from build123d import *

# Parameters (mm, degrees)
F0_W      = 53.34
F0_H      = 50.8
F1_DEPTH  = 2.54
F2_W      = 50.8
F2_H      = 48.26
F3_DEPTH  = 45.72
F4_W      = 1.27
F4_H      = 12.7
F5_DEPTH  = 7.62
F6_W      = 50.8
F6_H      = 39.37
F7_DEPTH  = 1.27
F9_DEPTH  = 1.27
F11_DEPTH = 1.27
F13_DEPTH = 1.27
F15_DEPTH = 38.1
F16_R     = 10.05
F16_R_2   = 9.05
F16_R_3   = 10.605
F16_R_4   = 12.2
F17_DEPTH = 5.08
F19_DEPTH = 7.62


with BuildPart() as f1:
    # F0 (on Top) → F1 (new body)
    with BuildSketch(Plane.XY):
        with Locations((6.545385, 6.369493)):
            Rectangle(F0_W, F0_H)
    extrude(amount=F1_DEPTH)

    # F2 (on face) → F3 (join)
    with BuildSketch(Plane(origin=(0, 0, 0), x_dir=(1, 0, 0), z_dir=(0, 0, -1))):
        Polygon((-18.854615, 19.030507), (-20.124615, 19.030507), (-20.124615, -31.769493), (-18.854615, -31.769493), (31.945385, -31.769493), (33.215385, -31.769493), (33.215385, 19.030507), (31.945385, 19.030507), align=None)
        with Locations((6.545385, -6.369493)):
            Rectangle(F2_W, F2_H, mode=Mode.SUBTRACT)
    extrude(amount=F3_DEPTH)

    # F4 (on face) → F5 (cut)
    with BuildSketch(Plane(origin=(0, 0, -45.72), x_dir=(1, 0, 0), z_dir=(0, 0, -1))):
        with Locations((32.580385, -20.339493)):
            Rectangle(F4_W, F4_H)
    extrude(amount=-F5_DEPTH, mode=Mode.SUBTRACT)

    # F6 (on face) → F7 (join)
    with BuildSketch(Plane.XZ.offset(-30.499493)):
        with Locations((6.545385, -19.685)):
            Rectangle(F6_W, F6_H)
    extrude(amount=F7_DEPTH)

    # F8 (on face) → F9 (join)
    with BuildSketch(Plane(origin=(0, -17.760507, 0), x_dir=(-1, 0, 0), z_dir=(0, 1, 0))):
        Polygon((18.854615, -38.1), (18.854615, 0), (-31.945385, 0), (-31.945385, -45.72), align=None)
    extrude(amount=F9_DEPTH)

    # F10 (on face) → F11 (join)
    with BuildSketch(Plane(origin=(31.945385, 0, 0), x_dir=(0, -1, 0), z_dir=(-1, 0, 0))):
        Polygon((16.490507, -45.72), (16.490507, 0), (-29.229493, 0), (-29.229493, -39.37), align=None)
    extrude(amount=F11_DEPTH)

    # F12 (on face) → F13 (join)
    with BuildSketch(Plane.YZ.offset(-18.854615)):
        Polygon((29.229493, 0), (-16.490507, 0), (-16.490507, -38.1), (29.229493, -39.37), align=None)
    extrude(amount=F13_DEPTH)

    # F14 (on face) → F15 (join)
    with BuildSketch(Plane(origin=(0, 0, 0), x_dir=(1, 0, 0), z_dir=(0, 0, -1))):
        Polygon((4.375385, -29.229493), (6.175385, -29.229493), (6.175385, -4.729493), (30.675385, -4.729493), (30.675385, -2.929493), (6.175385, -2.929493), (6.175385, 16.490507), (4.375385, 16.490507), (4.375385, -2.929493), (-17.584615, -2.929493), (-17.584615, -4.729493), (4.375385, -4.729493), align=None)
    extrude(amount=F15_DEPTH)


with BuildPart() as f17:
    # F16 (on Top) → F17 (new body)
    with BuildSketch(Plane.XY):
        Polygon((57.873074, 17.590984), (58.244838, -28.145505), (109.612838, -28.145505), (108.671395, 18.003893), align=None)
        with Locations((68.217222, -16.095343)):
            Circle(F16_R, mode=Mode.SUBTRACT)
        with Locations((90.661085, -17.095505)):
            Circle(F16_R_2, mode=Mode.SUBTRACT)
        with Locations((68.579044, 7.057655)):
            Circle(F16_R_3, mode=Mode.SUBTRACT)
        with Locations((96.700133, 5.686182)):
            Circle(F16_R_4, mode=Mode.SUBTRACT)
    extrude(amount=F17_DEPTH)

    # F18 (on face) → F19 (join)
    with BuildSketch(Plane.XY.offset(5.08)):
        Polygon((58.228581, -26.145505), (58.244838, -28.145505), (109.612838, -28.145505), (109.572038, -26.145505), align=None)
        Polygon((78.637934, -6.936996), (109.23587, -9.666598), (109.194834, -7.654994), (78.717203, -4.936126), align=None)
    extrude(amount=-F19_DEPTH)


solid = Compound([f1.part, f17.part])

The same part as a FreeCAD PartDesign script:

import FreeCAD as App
import Part
import Sketcher
from FreeCAD import Vector
Q = App.Units.Quantity

doc = App.newDocument("Part")
body = doc.addObject("PartDesign::Body", "Body")

sketch1 = body.newObject("Sketcher::SketchObject", "Sketch")
sketch1.AttachmentSupport = (doc.getObject("XY_Plane"), [""])
sketch1.MapMode = "FlatFace"
sketch1.addGeometry([
    Part.LineSegment(Vector(-20, 32, 0), Vector(-20, -19, 0)),
    Part.LineSegment(Vector(-20, -19, 0), Vector(33, -19, 0)),
    Part.LineSegment(Vector(33, -19, 0), Vector(33, 32, 0)),
    Part.LineSegment(Vector(33, 32, 0), Vector(-20, 32, 0)),
], False)
sketch1.addConstraint([
    Sketcher.Constraint("Coincident", 0, 2, 1, 1),
    Sketcher.Constraint("Coincident", 1, 2, 2, 1),
    Sketcher.Constraint("Coincident", 2, 2, 3, 1),
    Sketcher.Constraint("Coincident", 3, 2, 0, 1),
    Sketcher.Constraint("Vertical", 0),
    Sketcher.Constraint("Horizontal", 1),
    Sketcher.Constraint("Vertical", 2),
    Sketcher.Constraint("Horizontal", 3),
    Sketcher.Constraint("DistanceY", 0, 2, 0, 1, Q("2 in")),
    Sketcher.Constraint("DistanceX", 1, 1, 1, 2, Q("2.1 in")),
    Sketcher.Constraint("DistanceX", 0, 2, -1, 1, 20.124615),
    Sketcher.Constraint("DistanceY", 0, 2, -1, 1, 19.030507),
])
pad1 = body.newObject("PartDesign::Pad", "Pad")
pad1.Profile = sketch1
pad1.Length = Q("0.1 in")

sketch2 = body.newObject("Sketcher::SketchObject", "Sketch001")
sketch2.AttachmentSupport = (doc.getObject("XY_Plane"), [""])
sketch2.MapMode = "FlatFace"
sketch2.addGeometry([
    Part.LineSegment(Vector(-20, -19, 0), Vector(-20, 32, 0)),
    Part.LineSegment(Vector(-20, 32, 0), Vector(33, 32, 0)),
    Part.LineSegment(Vector(33, 32, 0), Vector(33, -19, 0)),
    Part.LineSegment(Vector(33, -19, 0), Vector(-20, -19, 0)),
    Part.LineSegment(Vector(32, 30, 0), Vector(-19, 30, 0)),
    Part.LineSegment(Vector(-19, 30, 0), Vector(-19, -18, 0)),
    Part.LineSegment(Vector(-19, -18, 0), Vector(32, -18, 0)),
    Part.LineSegment(Vector(32, -18, 0), Vector(32, 30, 0)),
], False)
sketch2.addConstraint([
    Sketcher.Constraint("Coincident", 0, 2, 1, 1),
    Sketcher.Constraint("Coincident", 1, 2, 2, 1),
    Sketcher.Constraint("Coincident", 2, 2, 3, 1),
    Sketcher.Constraint("Coincident", 3, 2, 0, 1),
    Sketcher.Constraint("Coincident", 4, 2, 5, 1),
    Sketcher.Constraint("Coincident", 5, 2, 6, 1),
    Sketcher.Constraint("Coincident", 6, 2, 7, 1),
    Sketcher.Constraint("Coincident", 7, 2, 4, 1),
    Sketcher.Constraint("Vertical", 0),
    Sketcher.Constraint("Horizontal", 1),
    Sketcher.Constraint("Vertical", 2),
    Sketcher.Constraint("Horizontal", 3),
    Sketcher.Constraint("Horizontal", 4),
    Sketcher.Constraint("Vertical", 5),
    Sketcher.Constraint("Horizontal", 6),
    Sketcher.Constraint("Vertical", 7),
    Sketcher.Constraint("Equal", 6, 0),
    Sketcher.Constraint("DistanceX", 4, 2, 4, 1, Q("2 in")),
    Sketcher.Constraint("DistanceX", 1, 1, 1, 2, Q("2.1 in")),
    Sketcher.Constraint("DistanceY", 5, 2, 5, 1, Q("1.9 in")),
    Sketcher.Constraint("DistanceX", 0, 2, 4, 2, Q("0.05 in")),
    Sketcher.Constraint("DistanceY", 4, 2, 0, 2, Q("0.05 in")),
    Sketcher.Constraint("DistanceX", 0, 2, -1, 1, 20.124615),
    Sketcher.Constraint("DistanceY", -1, 1, 0, 2, 31.769493),
])
pad2 = body.newObject("PartDesign::Pad", "Pad001")
pad2.Profile = sketch2
pad2.Length = Q("1.8 in")
pad2.Reversed = True

sketch3 = body.newObject("Sketcher::SketchObject", "Sketch002")
sketch3.AttachmentSupport = (doc.getObject("XY_Plane"), [""])
sketch3.MapMode = "FlatFace"
sketch3.AttachmentOffset = App.Placement(Vector(0, 0, -1.8 * 25.4), App.Rotation())
sketch3.addGeometry([
    Part.LineSegment(Vector(31.9, 14, 0), Vector(31.9, 26.7, 0)),
    Part.LineSegment(Vector(31.9, 26.7, 0), Vector(33.2, 26.7, 0)),
    Part.LineSegment(Vector(33.2, 26.7, 0), Vector(33.2, 14, 0)),
    Part.LineSegment(Vector(33.2, 14, 0), Vector(31.9, 14, 0)),
], False)
sketch3.addConstraint([
    Sketcher.Constraint("Coincident", 0, 2, 1, 1),
    Sketcher.Constraint("Coincident", 1, 2, 2, 1),
    Sketcher.Constraint("Coincident", 2, 2, 3, 1),
    Sketcher.Constraint("Coincident", 3, 2, 0, 1),
    Sketcher.Constraint("Vertical", 0),
    Sketcher.Constraint("Horizontal", 1),
    Sketcher.Constraint("Vertical", 2),
    Sketcher.Constraint("Horizontal", 3),
    Sketcher.Constraint("DistanceY", 0, 1, 0, 2, Q("0.5 in")),
    Sketcher.Constraint("DistanceX", 1, 1, 1, 2, Q("0.05 in")),
    Sketcher.Constraint("DistanceX", -1, 1, 0, 2, 31.945385),
    Sketcher.Constraint("DistanceY", -1, 1, 0, 2, 26.689493),
])
pocket1 = body.newObject("PartDesign::Pocket", "Pocket")
pocket1.Profile = sketch3
pocket1.Length = Q("0.3 in")
pocket1.Reversed = True

sketch4 = body.newObject("Sketcher::SketchObject", "Sketch003")
sketch4.AttachmentSupport = (doc.getObject("XZ_Plane"), [""])
sketch4.MapMode = "FlatFace"
sketch4.AttachmentOffset = App.Placement(Vector(0, 0, -30.499493), App.Rotation())
sketch4.addGeometry([
    Part.LineSegment(Vector(-19, 0, 0), Vector(-19, -39, 0)),
    Part.LineSegment(Vector(-19, -39, 0), Vector(32, -39, 0)),
    Part.LineSegment(Vector(32, -39, 0), Vector(32, 0, 0)),
    Part.LineSegment(Vector(32, 0, 0), Vector(-19, 0, 0)),
], False)
sketch4.addConstraint([
    Sketcher.Constraint("Coincident", 0, 2, 1, 1),
    Sketcher.Constraint("Coincident", 1, 2, 2, 1),
    Sketcher.Constraint("Coincident", 2, 2, 3, 1),
    Sketcher.Constraint("Coincident", 3, 2, 0, 1),
    Sketcher.Constraint("Vertical", 0),
    Sketcher.Constraint("Horizontal", 1),
    Sketcher.Constraint("Vertical", 2),
    Sketcher.Constraint("Horizontal", 3),
    Sketcher.Constraint("PointOnObject", 2, 2, -1),
    Sketcher.Constraint("DistanceX", 1, 1, 1, 2, Q("2 in")),
    Sketcher.Constraint("DistanceY", 0, 2, 0, 1, Q("1.55 in")),
    Sketcher.Constraint("DistanceX", 0, 2, -1, 1, 18.854615),
])
pad3 = body.newObject("PartDesign::Pad", "Pad002")
pad3.Profile = sketch4
pad3.Length = Q("0.05 in")

sketch5 = body.newObject("Sketcher::SketchObject", "Sketch004")
sketch5.AttachmentSupport = (doc.getObject("XZ_Plane"), [""])
sketch5.MapMode = "FlatFace"
sketch5.AttachmentOffset = App.Placement(Vector(0, 0, 17.760507), App.Rotation())
sketch5.addGeometry([
    Part.LineSegment(Vector(-19, -38, 0), Vector(-19, 0, 0)),
    Part.LineSegment(Vector(-19, 0, 0), Vector(32, 0, 0)),
    Part.LineSegment(Vector(32, 0, 0), Vector(32, -46, 0)),
    Part.LineSegment(Vector(32, -46, 0), Vector(-19, -38, 0)),
], False)
sketch5.addConstraint([
    Sketcher.Constraint("Coincident", 0, 2, 1, 1),
    Sketcher.Constraint("Coincident", 1, 2, 2, 1),
    Sketcher.Constraint("Coincident", 2, 2, 3, 1),
    Sketcher.Constraint("Coincident", 3, 2, 0, 1),
    Sketcher.Constraint("Vertical", 0),
    Sketcher.Constraint("Horizontal", 1),
    Sketcher.Constraint("Vertical", 2),
    Sketcher.Constraint("PointOnObject", 0, 2, -1),
    Sketcher.Constraint("DistanceX", 1, 1, 1, 2, Q("2 in")),
    Sketcher.Constraint("DistanceY", 0, 1, 0, 2, Q("1.5 in")),
    Sketcher.Constraint("DistanceY", 2, 2, 2, 1, Q("1.8 in")),
    Sketcher.Constraint("DistanceX", 0, 2, -1, 1, 18.854615),
])
pad4 = body.newObject("PartDesign::Pad", "Pad003")
pad4.Profile = sketch5
pad4.Length = Q("0.05 in")
pad4.Reversed = True

sketch6 = body.newObject("Sketcher::SketchObject", "Sketch005")
sketch6.AttachmentSupport = (doc.getObject("YZ_Plane"), [""])
sketch6.MapMode = "FlatFace"
sketch6.AttachmentOffset = App.Placement(Vector(0, 0, 31.945385), App.Rotation())
sketch6.addGeometry([
    Part.LineSegment(Vector(-16, -46, 0), Vector(-16, 0, 0)),
    Part.LineSegment(Vector(-16, 0, 0), Vector(29, 0, 0)),
    Part.LineSegment(Vector(29, 0, 0), Vector(29, -39, 0)),
    Part.LineSegment(Vector(29, -39, 0), Vector(-16, -46, 0)),
], False)
sketch6.addConstraint([
    Sketcher.Constraint("Coincident", 0, 2, 1, 1),
    Sketcher.Constraint("Coincident", 1, 2, 2, 1),
    Sketcher.Constraint("Coincident", 2, 2, 3, 1),
    Sketcher.Constraint("Coincident", 3, 2, 0, 1),
    Sketcher.Constraint("Vertical", 0),
    Sketcher.Constraint("Horizontal", 1),
    Sketcher.Constraint("Vertical", 2),
    Sketcher.Constraint("PointOnObject", 0, 2, -1),
    Sketcher.Constraint("Equal", 1, 0),
    Sketcher.Constraint("DistanceX", 1, 1, 1, 2, Q("1.8 in")),
    Sketcher.Constraint("DistanceY", 2, 2, 2, 1, Q("1.55 in")),
    Sketcher.Constraint("DistanceX", 0, 2, -1, 1, 16.490507),
])
pad5 = body.newObject("PartDesign::Pad", "Pad004")
pad5.Profile = sketch6
pad5.Length = Q("0.05 in")
pad5.Reversed = True

sketch7 = body.newObject("Sketcher::SketchObject", "Sketch006")
sketch7.AttachmentSupport = (doc.getObject("YZ_Plane"), [""])
sketch7.MapMode = "FlatFace"
sketch7.AttachmentOffset = App.Placement(Vector(0, 0, -18.854615), App.Rotation())
sketch7.addGeometry([
    Part.LineSegment(Vector(29, 0, 0), Vector(-16, 0, 0)),
    Part.LineSegment(Vector(-16, 0, 0), Vector(-16, -38, 0)),
    Part.LineSegment(Vector(-16, -38, 0), Vector(29, -39, 0)),
    Part.LineSegment(Vector(29, -39, 0), Vector(29, 0, 0)),
], False)
sketch7.addConstraint([
    Sketcher.Constraint("Coincident", 0, 2, 1, 1),
    Sketcher.Constraint("Coincident", 1, 2, 2, 1),
    Sketcher.Constraint("Coincident", 2, 2, 3, 1),
    Sketcher.Constraint("Coincident", 3, 2, 0, 1),
    Sketcher.Constraint("Horizontal", 0),
    Sketcher.Constraint("Vertical", 1),
    Sketcher.Constraint("Vertical", 3),
    Sketcher.Constraint("PointOnObject", 0, 2, -1),
    Sketcher.Constraint("DistanceX", 0, 2, 0, 1, Q("1.8 in")),
    Sketcher.Constraint("DistanceY", 1, 2, 1, 1, Q("1.5 in")),
    Sketcher.Constraint("DistanceY", 3, 1, 3, 2, Q("1.55 in")),
    Sketcher.Constraint("DistanceX", 0, 2, -1, 1, 16.490507),
])
pad6 = body.newObject("PartDesign::Pad", "Pad005")
pad6.Profile = sketch7
pad6.Length = Q("0.05 in")

sketch8 = body.newObject("Sketcher::SketchObject", "Sketch007")
sketch8.AttachmentSupport = (doc.getObject("XY_Plane"), [""])
sketch8.MapMode = "FlatFace"
sketch8.addGeometry([
    Part.LineSegment(Vector(4.4, 29.2, 0), Vector(6.2, 29.2, 0)),
    Part.LineSegment(Vector(6.2, 29.2, 0), Vector(6.2, 4.7, 0)),
    Part.LineSegment(Vector(6.2, 4.7, 0), Vector(30.7, 4.7, 0)),
    Part.LineSegment(Vector(30.7, 4.7, 0), Vector(30.7, 2.9, 0)),
    Part.LineSegment(Vector(30.7, 2.9, 0), Vector(6.2, 2.9, 0)),
    Part.LineSegment(Vector(6.2, 2.9, 0), Vector(6.2, -16.5, 0)),
    Part.LineSegment(Vector(6.2, -16.5, 0), Vector(4.4, -16.5, 0)),
    Part.LineSegment(Vector(4.4, -16.5, 0), Vector(4.4, 2.9, 0)),
    Part.LineSegment(Vector(4.4, 2.9, 0), Vector(-17.6, 2.9, 0)),
    Part.LineSegment(Vector(-17.6, 2.9, 0), Vector(-17.6, 4.7, 0)),
    Part.LineSegment(Vector(-17.6, 4.7, 0), Vector(4.4, 4.7, 0)),
    Part.LineSegment(Vector(4.4, 4.7, 0), Vector(4.4, 29.2, 0)),
], False)
sketch8.addConstraint([
    Sketcher.Constraint("Coincident", 0, 2, 1, 1),
    Sketcher.Constraint("Coincident", 1, 2, 2, 1),
    Sketcher.Constraint("Coincident", 2, 2, 3, 1),
    Sketcher.Constraint("Coincident", 3, 2, 4, 1),
    Sketcher.Constraint("Coincident", 4, 2, 5, 1),
    Sketcher.Constraint("Coincident", 5, 2, 6, 1),
    Sketcher.Constraint("Coincident", 6, 2, 7, 1),
    Sketcher.Constraint("Coincident", 7, 2, 8, 1),
    Sketcher.Constraint("Coincident", 8, 2, 9, 1),
    Sketcher.Constraint("Coincident", 9, 2, 10, 1),
    Sketcher.Constraint("Coincident", 10, 2, 11, 1),
    Sketcher.Constraint("Coincident", 11, 2, 0, 1),
    Sketcher.Constraint("Horizontal", 0),
    Sketcher.Constraint("Vertical", 1),
    Sketcher.Constraint("Horizontal", 2),
    Sketcher.Constraint("Vertical", 3),
    Sketcher.Constraint("Horizontal", 4),
    Sketcher.Constraint("Vertical", 5),
    Sketcher.Constraint("Horizontal", 6),
    Sketcher.Constraint("Vertical", 7),
    Sketcher.Constraint("Horizontal", 8),
    Sketcher.Constraint("Vertical", 9),
    Sketcher.Constraint("Horizontal", 10),
    Sketcher.Constraint("Vertical", 11),
    Sketcher.Constraint("Horizontal", 4, 2, 7, 2),
    Sketcher.Constraint("Horizontal", 2, 2, 9, 2),
    Sketcher.Constraint("Vertical", 1, 2, 4, 2),
    Sketcher.Constraint("Vertical", 7, 2, 10, 2),
    Sketcher.Constraint("Equal", 4, 1),
    Sketcher.Constraint("Equal", 6, 3),
    Sketcher.Constraint("DistanceY", 5, 2, 0, 2, Q("1.8 in")),
    Sketcher.Constraint("DistanceX", 0, 1, 0, 2, 1.8),
    Sketcher.Constraint("DistanceX", 2, 1, 2, 2, 24.5),
    Sketcher.Constraint("DistanceX", 8, 2, 8, 1, 21.96),
    Sketcher.Constraint("DistanceX", -1, 1, 0, 2, 6.175385),
    Sketcher.Constraint("DistanceY", -1, 1, 0, 2, 29.229493),
])
pad7 = body.newObject("PartDesign::Pad", "Pad006")
pad7.Profile = sketch8
pad7.Length = Q("1.5 in")
pad7.Reversed = True
body2 = doc.addObject("PartDesign::Body", "Body001")

sketch9 = body2.newObject("Sketcher::SketchObject", "Sketch008")
sketch9.AttachmentSupport = (doc.getObject("XY_Plane001"), [""])
sketch9.MapMode = "FlatFace"
sketch9.addGeometry([
    Part.LineSegment(Vector(58, 18, 0), Vector(58, -28, 0)),
    Part.LineSegment(Vector(58, -28, 0), Vector(110, -28, 0)),
    Part.LineSegment(Vector(110, -28, 0), Vector(109, 18, 0)),
    Part.LineSegment(Vector(109, 18, 0), Vector(58, 18, 0)),
    Part.Circle(Vector(68, -16, 0), Vector(0, 0, 1), 10),
    Part.Circle(Vector(91, -17, 0), Vector(0, 0, 1), 9),
    Part.Circle(Vector(69, 7, 0), Vector(0, 0, 1), 11),
    Part.Circle(Vector(97, 6, 0), Vector(0, 0, 1), 12),
], False)
sketch9.addConstraint([
    Sketcher.Constraint("Coincident", 0, 2, 1, 1),
    Sketcher.Constraint("Coincident", 1, 2, 2, 1),
    Sketcher.Constraint("Coincident", 2, 2, 3, 1),
    Sketcher.Constraint("Coincident", 3, 2, 0, 1),
    Sketcher.Constraint("Horizontal", 1),
    Sketcher.Constraint("Perpendicular", 0, 3),
    Sketcher.Constraint("Distance", 3, Q("2 in")),
    Sketcher.Constraint("Diameter", 4, 20.1),
    Sketcher.Constraint("Diameter", 5, 18.1),
    Sketcher.Constraint("Diameter", 6, 21.21),
    Sketcher.Constraint("Diameter", 7, 24.4),
    Sketcher.Constraint("DistanceX", 1, 1, 1, 2, 51.368),
    Sketcher.Constraint("Distance", 0, 45.738),
    Sketcher.Constraint("Distance", 2, 46.159),
    Sketcher.Constraint("DistanceY", 4, 3, 6, 3, 23.152998),
    Sketcher.Constraint("DistanceY", 0, 2, 5, 3, 11.05),
    Sketcher.Constraint("DistanceY", -1, 1, 7, 3, 5.686182),
    Sketcher.Constraint("DistanceY", 5, 3, 4, 3, 1.000162),
    Sketcher.Constraint("DistanceX", 4, 3, 6, 3, 0.361822),
    Sketcher.Constraint("DistanceX", 6, 3, 5, 3, 22.082041),
    Sketcher.Constraint("DistanceX", 6, 3, 7, 3, 28.121089),
    Sketcher.Constraint("DistanceY", 7, 3, 2, 2, 12.317711),
    Sketcher.Constraint("DistanceX", 5, 3, 2, 2, 18.01031),
    Sketcher.Constraint("DistanceX", -1, 1, 4, 3, 68.217222),
])
pad8 = body2.newObject("PartDesign::Pad", "Pad007")
pad8.Profile = sketch9
pad8.Length = Q("0.2 in")

sketch10 = body2.newObject("Sketcher::SketchObject", "Sketch009")
sketch10.AttachmentSupport = (doc.getObject("XY_Plane001"), [""])
sketch10.MapMode = "FlatFace"
sketch10.AttachmentOffset = App.Placement(Vector(0, 0, 0.2 * 25.4), App.Rotation())
sketch10.addGeometry([
    Part.LineSegment(Vector(58.2, -26.1, 0), Vector(58.2, -28.1, 0)),
    Part.LineSegment(Vector(58.2, -28.1, 0), Vector(109.6, -28.1, 0)),
    Part.LineSegment(Vector(109.6, -28.1, 0), Vector(109.6, -26.1, 0)),
    Part.LineSegment(Vector(109.6, -26.1, 0), Vector(58.2, -26.1, 0)),
    Part.LineSegment(Vector(78.6, -6.9, 0), Vector(109.2, -9.7, 0)),
    Part.LineSegment(Vector(109.2, -9.7, 0), Vector(109.2, -7.7, 0)),
    Part.LineSegment(Vector(109.2, -7.7, 0), Vector(78.7, -4.9, 0)),
    Part.LineSegment(Vector(78.7, -4.9, 0), Vector(78.6, -6.9, 0)),
], False)
sketch10.addConstraint([
    Sketcher.Constraint("Coincident", 0, 2, 1, 1),
    Sketcher.Constraint("Coincident", 1, 2, 2, 1),
    Sketcher.Constraint("Coincident", 2, 2, 3, 1),
    Sketcher.Constraint("Coincident", 3, 2, 0, 1),
    Sketcher.Constraint("Coincident", 4, 2, 5, 1),
    Sketcher.Constraint("Coincident", 5, 2, 6, 1),
    Sketcher.Constraint("Coincident", 6, 2, 7, 1),
    Sketcher.Constraint("Coincident", 7, 2, 4, 1),
    Sketcher.Constraint("Horizontal", 1),
    Sketcher.Constraint("Horizontal", 3),
    Sketcher.Constraint("Parallel", 2, 5),
    Sketcher.Constraint("Parallel", 4, 6),
    Sketcher.Constraint("DistanceX", 1, 1, 1, 2, 51.368),
    Sketcher.Constraint("DistanceX", 2, 2, 1, 2, 0.0408),
    Sketcher.Constraint("DistanceY", 1, 2, 2, 2, 2.0),
    Sketcher.Constraint("DistanceX", 7, 2, 5, 2, 30.5569),
    Sketcher.Constraint("DistanceY", 5, 2, 7, 2, 0.717998),
    Sketcher.Constraint("Distance", 7, 2.00244),
    Sketcher.Constraint("DistanceX", 3, 2, 3, 1, 51.343457),
    Sketcher.Constraint("DistanceX", -1, 1, 2, 2, 109.572038),
    Sketcher.Constraint("DistanceX", -1, 1, 4, 2, 109.23587),
    Sketcher.Constraint("DistanceY", 2, 2, 5, 2, 18.490511),
    Sketcher.Constraint("DistanceX", 3, 2, 6, 2, 20.488622),
    Sketcher.Constraint("DistanceY", 0, 2, -1, 1, 28.145505),
])
pad9 = body2.newObject("PartDesign::Pad", "Pad008")
pad9.Profile = sketch10
pad9.Length = Q("0.3 in")
pad9.Reversed = True

doc.recompute()
